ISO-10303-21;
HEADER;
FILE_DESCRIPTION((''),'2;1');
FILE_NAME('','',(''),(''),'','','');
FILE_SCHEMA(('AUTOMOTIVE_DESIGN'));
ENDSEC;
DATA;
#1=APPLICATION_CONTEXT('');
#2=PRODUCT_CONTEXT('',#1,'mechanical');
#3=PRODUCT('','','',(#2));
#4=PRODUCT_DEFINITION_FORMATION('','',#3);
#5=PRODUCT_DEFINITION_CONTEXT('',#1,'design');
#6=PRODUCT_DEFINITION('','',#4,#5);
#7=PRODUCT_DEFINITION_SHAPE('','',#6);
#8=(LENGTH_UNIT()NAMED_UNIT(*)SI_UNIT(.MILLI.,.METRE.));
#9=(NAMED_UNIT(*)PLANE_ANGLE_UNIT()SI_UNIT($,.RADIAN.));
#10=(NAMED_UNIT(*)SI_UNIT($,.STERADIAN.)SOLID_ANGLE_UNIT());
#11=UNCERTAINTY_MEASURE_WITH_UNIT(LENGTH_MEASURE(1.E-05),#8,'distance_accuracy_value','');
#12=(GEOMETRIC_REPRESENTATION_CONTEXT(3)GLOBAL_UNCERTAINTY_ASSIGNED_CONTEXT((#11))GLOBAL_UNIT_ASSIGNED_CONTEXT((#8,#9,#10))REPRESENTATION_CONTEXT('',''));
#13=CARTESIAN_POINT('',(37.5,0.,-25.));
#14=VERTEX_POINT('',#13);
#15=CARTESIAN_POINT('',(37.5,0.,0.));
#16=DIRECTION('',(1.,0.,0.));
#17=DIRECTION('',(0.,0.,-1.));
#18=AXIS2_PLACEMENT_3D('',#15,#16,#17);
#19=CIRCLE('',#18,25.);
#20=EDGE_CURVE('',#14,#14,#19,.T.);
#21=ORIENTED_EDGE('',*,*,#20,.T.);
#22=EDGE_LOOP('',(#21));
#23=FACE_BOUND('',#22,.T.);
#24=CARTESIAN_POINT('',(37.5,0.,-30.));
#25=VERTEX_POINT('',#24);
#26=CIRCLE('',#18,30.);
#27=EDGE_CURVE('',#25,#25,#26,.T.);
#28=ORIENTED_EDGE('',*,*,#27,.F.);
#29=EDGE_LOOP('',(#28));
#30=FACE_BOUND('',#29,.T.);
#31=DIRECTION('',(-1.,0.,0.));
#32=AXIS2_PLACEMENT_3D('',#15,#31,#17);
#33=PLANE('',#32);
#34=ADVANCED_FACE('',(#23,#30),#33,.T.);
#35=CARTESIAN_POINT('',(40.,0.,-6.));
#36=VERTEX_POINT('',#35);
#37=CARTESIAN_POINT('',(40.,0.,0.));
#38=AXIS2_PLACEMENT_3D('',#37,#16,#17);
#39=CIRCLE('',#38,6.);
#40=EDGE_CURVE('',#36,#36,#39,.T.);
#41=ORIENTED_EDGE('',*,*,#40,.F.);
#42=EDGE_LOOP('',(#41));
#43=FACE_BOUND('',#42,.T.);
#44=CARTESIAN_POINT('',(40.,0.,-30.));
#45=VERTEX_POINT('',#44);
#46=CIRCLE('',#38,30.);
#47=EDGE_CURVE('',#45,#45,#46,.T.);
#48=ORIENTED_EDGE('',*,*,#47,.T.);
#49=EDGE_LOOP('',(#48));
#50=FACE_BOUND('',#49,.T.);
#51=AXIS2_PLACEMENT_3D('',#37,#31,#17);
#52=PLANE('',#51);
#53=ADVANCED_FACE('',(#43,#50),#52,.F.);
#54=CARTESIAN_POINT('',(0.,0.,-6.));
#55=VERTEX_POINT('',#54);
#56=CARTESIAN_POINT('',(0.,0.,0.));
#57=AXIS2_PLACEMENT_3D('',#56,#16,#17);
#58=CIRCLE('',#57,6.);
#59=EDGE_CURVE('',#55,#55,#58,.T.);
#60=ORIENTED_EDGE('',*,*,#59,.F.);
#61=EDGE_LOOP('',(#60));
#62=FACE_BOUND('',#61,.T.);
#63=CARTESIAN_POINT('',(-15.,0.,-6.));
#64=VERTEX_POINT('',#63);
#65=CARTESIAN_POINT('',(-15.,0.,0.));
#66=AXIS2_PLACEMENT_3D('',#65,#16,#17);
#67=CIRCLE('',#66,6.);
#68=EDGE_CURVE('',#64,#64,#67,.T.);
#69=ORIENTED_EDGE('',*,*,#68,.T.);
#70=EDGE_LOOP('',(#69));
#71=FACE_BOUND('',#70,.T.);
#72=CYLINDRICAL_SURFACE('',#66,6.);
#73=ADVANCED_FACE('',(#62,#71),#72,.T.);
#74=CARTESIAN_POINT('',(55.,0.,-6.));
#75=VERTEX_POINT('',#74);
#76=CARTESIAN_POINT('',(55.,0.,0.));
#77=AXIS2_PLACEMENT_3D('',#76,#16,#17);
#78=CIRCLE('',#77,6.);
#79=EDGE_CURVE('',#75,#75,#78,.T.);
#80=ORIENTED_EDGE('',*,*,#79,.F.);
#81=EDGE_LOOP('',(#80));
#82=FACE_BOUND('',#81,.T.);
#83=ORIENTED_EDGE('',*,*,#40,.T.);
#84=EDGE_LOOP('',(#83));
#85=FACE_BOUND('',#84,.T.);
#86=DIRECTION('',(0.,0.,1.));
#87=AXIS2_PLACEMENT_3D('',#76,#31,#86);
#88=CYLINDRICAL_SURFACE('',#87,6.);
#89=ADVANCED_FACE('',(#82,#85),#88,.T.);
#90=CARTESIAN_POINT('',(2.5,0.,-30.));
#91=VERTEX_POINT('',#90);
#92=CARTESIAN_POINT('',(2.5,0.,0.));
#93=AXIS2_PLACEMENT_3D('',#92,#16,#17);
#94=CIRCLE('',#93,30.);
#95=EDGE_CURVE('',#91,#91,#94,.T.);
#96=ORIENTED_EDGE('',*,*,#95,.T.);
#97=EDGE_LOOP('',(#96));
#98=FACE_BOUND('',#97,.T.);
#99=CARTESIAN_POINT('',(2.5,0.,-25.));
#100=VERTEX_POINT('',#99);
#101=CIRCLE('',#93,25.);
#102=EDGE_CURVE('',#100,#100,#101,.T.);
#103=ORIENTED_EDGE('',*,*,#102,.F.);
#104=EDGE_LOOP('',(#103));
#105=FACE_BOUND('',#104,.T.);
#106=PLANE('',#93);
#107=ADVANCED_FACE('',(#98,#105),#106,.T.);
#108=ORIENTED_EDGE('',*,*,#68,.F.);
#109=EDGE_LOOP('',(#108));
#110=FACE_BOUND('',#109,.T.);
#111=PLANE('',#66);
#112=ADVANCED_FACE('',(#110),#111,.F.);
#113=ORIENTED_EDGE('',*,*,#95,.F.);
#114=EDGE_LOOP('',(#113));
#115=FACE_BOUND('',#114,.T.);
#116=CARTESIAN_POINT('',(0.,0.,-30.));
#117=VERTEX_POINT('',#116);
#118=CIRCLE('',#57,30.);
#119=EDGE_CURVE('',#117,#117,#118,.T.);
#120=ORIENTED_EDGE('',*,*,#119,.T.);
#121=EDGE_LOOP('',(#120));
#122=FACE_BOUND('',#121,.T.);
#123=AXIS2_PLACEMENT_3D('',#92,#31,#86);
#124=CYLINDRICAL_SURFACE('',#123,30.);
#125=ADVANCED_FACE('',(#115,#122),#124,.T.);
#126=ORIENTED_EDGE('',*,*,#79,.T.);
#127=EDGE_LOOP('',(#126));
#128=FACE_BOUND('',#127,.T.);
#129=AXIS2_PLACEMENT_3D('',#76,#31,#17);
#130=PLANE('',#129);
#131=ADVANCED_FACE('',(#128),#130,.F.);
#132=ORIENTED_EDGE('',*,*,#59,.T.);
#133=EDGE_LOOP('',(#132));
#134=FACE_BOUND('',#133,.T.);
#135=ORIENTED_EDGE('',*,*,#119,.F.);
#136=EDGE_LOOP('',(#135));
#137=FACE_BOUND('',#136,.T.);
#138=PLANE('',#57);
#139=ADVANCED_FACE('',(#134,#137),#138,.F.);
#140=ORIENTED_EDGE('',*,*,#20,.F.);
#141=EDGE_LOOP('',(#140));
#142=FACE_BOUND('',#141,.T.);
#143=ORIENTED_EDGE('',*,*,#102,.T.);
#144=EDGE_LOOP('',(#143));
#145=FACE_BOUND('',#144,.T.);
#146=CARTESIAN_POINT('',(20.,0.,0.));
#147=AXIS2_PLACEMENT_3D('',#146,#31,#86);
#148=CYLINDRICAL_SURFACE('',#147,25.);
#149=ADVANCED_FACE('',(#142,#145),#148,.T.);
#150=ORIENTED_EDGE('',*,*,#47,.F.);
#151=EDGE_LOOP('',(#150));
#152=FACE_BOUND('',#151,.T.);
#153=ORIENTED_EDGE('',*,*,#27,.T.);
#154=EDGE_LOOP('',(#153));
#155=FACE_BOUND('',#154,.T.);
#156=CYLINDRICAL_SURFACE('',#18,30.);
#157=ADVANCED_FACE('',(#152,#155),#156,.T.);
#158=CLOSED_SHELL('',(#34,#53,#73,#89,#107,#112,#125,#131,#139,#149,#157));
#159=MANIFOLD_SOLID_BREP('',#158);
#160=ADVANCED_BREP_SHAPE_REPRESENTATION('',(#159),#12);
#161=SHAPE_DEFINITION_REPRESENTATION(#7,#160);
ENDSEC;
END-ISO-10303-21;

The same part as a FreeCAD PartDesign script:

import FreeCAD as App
import Part
import Sketcher
from FreeCAD import Vector

doc = App.newDocument("Part")
body = doc.addObject("PartDesign::Body", "Body")

# Sketch on YZ plane
sketch1 = body.newObject("Sketcher::SketchObject", "Sketch")
sketch1.AttachmentSupport = (doc.getObject("YZ_Plane"), [""])
sketch1.MapMode = "FlatFace"
sketch1.addGeometry(Part.Circle(Vector(0, 0, 0), Vector(0, 0, 1), 6), False)
sketch1.addConstraint([
    Sketcher.Constraint("Coincident", 0, 3, -1, 1),
    Sketcher.Constraint("Diameter", 0, 12.0),
])
pad1 = body.newObject("PartDesign::Pad", "Pad")
pad1.Profile = sketch1
pad1.Length = 15
pad1.Reversed = True

# Sketch on YZ plane
sketch2 = body.newObject("Sketcher::SketchObject", "Sketch001")
sketch2.AttachmentSupport = (doc.getObject("YZ_Plane"), [""])
sketch2.MapMode = "FlatFace"
sketch2.addGeometry(Part.Circle(Vector(0, 0, 0), Vector(0, 0, 1), 30), False)
sketch2.addConstraint([
    Sketcher.Constraint("Coincident", 0, 3, -1, 1),
    Sketcher.Constraint("Diameter", 0, 60.0),
])
pad2 = body.newObject("PartDesign::Pad", "Pad001")
pad2.Profile = sketch2
pad2.Length = 2.5

# Sketch on YZ plane
sketch3 = body.newObject("Sketcher::SketchObject", "Sketch002")
sketch3.AttachmentSupport = (doc.getObject("YZ_Plane"), [""])
sketch3.MapMode = "FlatFace"
sketch3.AttachmentOffset = App.Placement(Vector(0, 0, 2.5), App.Rotation())
sketch3.addGeometry(Part.Circle(Vector(0, 0, 0), Vector(0, 0, 1), 25), False)
sketch3.addConstraint([
    Sketcher.Constraint("Coincident", 0, 3, -1, 1),
    Sketcher.Constraint("Diameter", 0, 50.0),
])
pad3 = body.newObject("PartDesign::Pad", "Pad002")
pad3.Profile = sketch3
pad3.Length = 17.5
doc.recompute()

datumplane = body.newObject("PartDesign::Plane", "DatumPlane")
datumplane.AttachmentSupport = (doc.getObject("YZ_Plane"), [""])
datumplane.MapMode = "FlatFace"
datumplane.AttachmentOffset = App.Placement(Vector(0, 0, 20), App.Rotation())
mirrored = body.newObject("PartDesign::Mirrored", "Mirrored")
mirrored.Originals = [pad3]
mirrored.MirrorPlane = (datumplane, [""])
body.Tip = mirrored
doc.recompute()

datumplane2 = body.newObject("PartDesign::Plane", "DatumPlane001")
datumplane2.AttachmentSupport = (doc.getObject("YZ_Plane"), [""])
datumplane2.MapMode = "FlatFace"
datumplane2.AttachmentOffset = App.Placement(Vector(0, 0, 20), App.Rotation())
mirrored2 = body.newObject("PartDesign::Mirrored", "Mirrored001")
mirrored2.Originals = [pad2]
mirrored2.MirrorPlane = (datumplane2, [""])
body.Tip = mirrored2
doc.recompute()

datumplane3 = body.newObject("PartDesign::Plane", "DatumPlane002")
datumplane3.AttachmentSupport = (doc.getObject("YZ_Plane"), [""])
datumplane3.MapMode = "FlatFace"
datumplane3.AttachmentOffset = App.Placement(Vector(0, 0, 20), App.Rotation())
mirrored3 = body.newObject("PartDesign::Mirrored", "Mirrored002")
mirrored3.Originals = [pad1]
mirrored3.MirrorPlane = (datumplane3, [""])
body.Tip = mirrored3

doc.recompute()
